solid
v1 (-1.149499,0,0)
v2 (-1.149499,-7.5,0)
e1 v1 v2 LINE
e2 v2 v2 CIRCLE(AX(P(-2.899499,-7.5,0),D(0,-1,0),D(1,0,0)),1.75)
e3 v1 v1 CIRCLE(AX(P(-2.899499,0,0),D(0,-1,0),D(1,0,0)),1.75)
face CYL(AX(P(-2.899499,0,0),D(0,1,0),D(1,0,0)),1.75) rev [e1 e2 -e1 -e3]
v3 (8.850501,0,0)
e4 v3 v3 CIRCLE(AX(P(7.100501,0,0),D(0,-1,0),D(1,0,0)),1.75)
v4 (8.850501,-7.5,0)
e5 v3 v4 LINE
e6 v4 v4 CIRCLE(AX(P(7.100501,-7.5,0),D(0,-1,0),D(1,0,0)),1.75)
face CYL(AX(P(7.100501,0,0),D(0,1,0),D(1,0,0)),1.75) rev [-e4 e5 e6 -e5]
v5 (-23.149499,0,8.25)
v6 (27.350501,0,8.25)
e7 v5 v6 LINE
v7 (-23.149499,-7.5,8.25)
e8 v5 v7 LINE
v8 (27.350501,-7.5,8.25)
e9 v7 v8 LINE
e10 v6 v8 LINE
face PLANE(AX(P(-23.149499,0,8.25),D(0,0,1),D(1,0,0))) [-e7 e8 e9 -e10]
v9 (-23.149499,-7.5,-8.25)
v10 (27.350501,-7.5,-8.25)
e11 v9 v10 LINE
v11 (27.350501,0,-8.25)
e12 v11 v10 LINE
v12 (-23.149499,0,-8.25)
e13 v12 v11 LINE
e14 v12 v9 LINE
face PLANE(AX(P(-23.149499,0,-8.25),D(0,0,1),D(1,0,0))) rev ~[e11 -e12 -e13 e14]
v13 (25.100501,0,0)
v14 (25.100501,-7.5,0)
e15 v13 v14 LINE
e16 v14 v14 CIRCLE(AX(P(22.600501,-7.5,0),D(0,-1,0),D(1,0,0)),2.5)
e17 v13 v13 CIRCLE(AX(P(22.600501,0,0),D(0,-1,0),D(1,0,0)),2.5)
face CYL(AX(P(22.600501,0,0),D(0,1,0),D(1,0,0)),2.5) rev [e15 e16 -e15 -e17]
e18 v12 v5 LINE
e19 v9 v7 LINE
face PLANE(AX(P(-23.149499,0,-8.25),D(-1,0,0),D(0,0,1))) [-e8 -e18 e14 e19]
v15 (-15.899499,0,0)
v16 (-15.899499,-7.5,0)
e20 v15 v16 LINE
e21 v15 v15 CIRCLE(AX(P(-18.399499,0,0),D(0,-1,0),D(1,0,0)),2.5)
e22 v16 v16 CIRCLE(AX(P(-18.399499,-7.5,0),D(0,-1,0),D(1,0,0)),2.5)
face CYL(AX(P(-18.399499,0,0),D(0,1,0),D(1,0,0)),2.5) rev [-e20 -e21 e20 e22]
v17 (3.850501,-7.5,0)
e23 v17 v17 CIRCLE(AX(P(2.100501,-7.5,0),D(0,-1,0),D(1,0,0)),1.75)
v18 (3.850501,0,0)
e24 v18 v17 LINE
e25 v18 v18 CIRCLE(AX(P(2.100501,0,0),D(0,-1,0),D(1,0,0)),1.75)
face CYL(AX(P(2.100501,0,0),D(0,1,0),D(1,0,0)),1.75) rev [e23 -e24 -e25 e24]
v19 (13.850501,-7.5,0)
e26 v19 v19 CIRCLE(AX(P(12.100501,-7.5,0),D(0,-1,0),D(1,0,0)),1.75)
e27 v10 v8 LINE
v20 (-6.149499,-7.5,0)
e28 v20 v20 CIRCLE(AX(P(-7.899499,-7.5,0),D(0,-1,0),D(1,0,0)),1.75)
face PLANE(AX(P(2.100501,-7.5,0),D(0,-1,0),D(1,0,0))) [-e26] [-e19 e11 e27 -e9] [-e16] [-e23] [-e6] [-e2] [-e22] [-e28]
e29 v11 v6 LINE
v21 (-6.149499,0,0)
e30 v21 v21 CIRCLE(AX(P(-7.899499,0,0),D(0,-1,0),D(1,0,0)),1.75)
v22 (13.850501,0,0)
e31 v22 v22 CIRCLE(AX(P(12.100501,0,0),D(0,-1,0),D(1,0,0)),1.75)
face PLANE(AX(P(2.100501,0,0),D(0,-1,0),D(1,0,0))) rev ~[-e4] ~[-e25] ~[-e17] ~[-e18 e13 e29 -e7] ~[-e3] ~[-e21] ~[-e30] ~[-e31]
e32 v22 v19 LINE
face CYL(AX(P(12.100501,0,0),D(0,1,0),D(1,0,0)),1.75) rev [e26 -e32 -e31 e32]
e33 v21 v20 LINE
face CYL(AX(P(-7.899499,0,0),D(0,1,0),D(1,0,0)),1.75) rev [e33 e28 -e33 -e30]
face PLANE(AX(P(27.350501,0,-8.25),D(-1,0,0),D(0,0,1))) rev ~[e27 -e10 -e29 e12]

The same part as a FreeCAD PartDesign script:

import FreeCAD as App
import Part
import Sketcher

V = App.Vector


def add_polygon(sketch, points):
    """Adds a closed chain of lines whose ends are joined by coincident constraints."""
    first, n = sketch.GeometryCount, len(points)
    for a, b in zip(points, points[1:] + points[:1]):
        sketch.addGeometry(Part.LineSegment(App.Vector(*a, 0), App.Vector(*b, 0)), False)
    for i in range(n):
        sketch.addConstraint(Sketcher.Constraint("Coincident", first + i, 2, first + (i + 1) % n, 1))

doc = App.newDocument("Part")
body = doc.addObject("PartDesign::Body", "Body")

# Sketch on XZ plane
sketch1 = body.newObject("Sketcher::SketchObject", "Sketch")
sketch1.AttachmentSupport = (doc.getObject("XZ_Plane"), [""])
sketch1.MapMode = "FlatFace"
add_polygon(sketch1, [(-23.149499, 8.25), (-23.149499, -8.25), (27.350501, -8.25), (27.350501, 8.25)])  # lines 0-3
sketch1.addGeometry(Part.Circle(V(-18.399499, 0, 0), V(0, 0, 1), 2.5), False)  # 4
sketch1.addGeometry(Part.Circle(V(-7.899499, 0, 0), V(0, 0, 1), 1.75), False)  # 5
sketch1.addGeometry(Part.Circle(V(-2.899499, 0, 0), V(0, 0, 1), 1.75), False)  # 6
sketch1.addGeometry(Part.Circle(V(2.100501, 0, 0), V(0, 0, 1), 1.75), False)  # 7
sketch1.addGeometry(Part.Circle(V(7.100501, 0, 0), V(0, 0, 1), 1.75), False)  # 8
sketch1.addGeometry(Part.Circle(V(12.100501, 0, 0), V(0, 0, 1), 1.75), False)  # 9
sketch1.addGeometry(Part.Circle(V(22.600501, 0, 0), V(0, 0, 1), 2.5), False)  # 10
sketch1.addConstraint(Sketcher.Constraint("Vertical", 0))
sketch1.addConstraint(Sketcher.Constraint("Horizontal", 1))
sketch1.addConstraint(Sketcher.Constraint("Vertical", 2))
sketch1.addConstraint(Sketcher.Constraint("Horizontal", 3))
sketch1.addConstraint(Sketcher.Constraint("Equal", 5, 6))
sketch1.addConstraint(Sketcher.Constraint("Equal", 6, 7))
sketch1.addConstraint(Sketcher.Constraint("Equal", 7, 8))
sketch1.addConstraint(Sketcher.Constraint("Equal", 8, 9))
sketch1.addConstraint(Sketcher.Constraint("Equal", 4, 10))
sketch1.addConstraint(Sketcher.Constraint("PointOnObject", 4, 3, -1))
sketch1.addConstraint(Sketcher.Constraint("PointOnObject", 5, 3, -1))
sketch1.addConstraint(Sketcher.Constraint("PointOnObject", 6, 3, -1))
sketch1.addConstraint(Sketcher.Constraint("PointOnObject", 7, 3, -1))
sketch1.addConstraint(Sketcher.Constraint("PointOnObject", 8, 3, -1))
sketch1.addConstraint(Sketcher.Constraint("PointOnObject", 9, 3, -1))
sketch1.addConstraint(Sketcher.Constraint("PointOnObject", 10, 3, -1))
sketch1.addConstraint(Sketcher.Constraint("Diameter", 4, 5.0))
sketch1.addConstraint(Sketcher.Constraint("Diameter", 5, 3.5))
sketch1.addConstraint(Sketcher.Constraint("DistanceX", 1, 1, 1, 2, 50.5))
sketch1.addConstraint(Sketcher.Constraint("DistanceY", 0, 2, 0, 1, 16.5))
sketch1.addConstraint(Sketcher.Constraint("DistanceX", 5, 3, 6, 3, 5.0))
sketch1.addConstraint(Sketcher.Constraint("DistanceX", 6, 3, 7, 3, 5.0))
sketch1.addConstraint(Sketcher.Constraint("DistanceX", 7, 3, 8, 3, 5.0))
sketch1.addConstraint(Sketcher.Constraint("DistanceX", 8, 3, 9, 3, 5.0))
sketch1.addConstraint(Sketcher.Constraint("DistanceX", 4, 3, 5, 3, 10.5))
sketch1.addConstraint(Sketcher.Constraint("DistanceX", 9, 3, 10, 3, 10.5))
sketch1.addConstraint(Sketcher.Constraint("DistanceY", 0, 2, -1, 1, 8.25))
sketch1.addConstraint(Sketcher.Constraint("DistanceX", 0, 2, 4, 3, 4.75))
sketch1.addConstraint(Sketcher.Constraint("DistanceX", 4, 3, -1, 1, 18.399499))
pad1 = body.newObject("PartDesign::Pad", "Pad")
pad1.Profile = sketch1
pad1.Length = 7.5

doc.recompute()
